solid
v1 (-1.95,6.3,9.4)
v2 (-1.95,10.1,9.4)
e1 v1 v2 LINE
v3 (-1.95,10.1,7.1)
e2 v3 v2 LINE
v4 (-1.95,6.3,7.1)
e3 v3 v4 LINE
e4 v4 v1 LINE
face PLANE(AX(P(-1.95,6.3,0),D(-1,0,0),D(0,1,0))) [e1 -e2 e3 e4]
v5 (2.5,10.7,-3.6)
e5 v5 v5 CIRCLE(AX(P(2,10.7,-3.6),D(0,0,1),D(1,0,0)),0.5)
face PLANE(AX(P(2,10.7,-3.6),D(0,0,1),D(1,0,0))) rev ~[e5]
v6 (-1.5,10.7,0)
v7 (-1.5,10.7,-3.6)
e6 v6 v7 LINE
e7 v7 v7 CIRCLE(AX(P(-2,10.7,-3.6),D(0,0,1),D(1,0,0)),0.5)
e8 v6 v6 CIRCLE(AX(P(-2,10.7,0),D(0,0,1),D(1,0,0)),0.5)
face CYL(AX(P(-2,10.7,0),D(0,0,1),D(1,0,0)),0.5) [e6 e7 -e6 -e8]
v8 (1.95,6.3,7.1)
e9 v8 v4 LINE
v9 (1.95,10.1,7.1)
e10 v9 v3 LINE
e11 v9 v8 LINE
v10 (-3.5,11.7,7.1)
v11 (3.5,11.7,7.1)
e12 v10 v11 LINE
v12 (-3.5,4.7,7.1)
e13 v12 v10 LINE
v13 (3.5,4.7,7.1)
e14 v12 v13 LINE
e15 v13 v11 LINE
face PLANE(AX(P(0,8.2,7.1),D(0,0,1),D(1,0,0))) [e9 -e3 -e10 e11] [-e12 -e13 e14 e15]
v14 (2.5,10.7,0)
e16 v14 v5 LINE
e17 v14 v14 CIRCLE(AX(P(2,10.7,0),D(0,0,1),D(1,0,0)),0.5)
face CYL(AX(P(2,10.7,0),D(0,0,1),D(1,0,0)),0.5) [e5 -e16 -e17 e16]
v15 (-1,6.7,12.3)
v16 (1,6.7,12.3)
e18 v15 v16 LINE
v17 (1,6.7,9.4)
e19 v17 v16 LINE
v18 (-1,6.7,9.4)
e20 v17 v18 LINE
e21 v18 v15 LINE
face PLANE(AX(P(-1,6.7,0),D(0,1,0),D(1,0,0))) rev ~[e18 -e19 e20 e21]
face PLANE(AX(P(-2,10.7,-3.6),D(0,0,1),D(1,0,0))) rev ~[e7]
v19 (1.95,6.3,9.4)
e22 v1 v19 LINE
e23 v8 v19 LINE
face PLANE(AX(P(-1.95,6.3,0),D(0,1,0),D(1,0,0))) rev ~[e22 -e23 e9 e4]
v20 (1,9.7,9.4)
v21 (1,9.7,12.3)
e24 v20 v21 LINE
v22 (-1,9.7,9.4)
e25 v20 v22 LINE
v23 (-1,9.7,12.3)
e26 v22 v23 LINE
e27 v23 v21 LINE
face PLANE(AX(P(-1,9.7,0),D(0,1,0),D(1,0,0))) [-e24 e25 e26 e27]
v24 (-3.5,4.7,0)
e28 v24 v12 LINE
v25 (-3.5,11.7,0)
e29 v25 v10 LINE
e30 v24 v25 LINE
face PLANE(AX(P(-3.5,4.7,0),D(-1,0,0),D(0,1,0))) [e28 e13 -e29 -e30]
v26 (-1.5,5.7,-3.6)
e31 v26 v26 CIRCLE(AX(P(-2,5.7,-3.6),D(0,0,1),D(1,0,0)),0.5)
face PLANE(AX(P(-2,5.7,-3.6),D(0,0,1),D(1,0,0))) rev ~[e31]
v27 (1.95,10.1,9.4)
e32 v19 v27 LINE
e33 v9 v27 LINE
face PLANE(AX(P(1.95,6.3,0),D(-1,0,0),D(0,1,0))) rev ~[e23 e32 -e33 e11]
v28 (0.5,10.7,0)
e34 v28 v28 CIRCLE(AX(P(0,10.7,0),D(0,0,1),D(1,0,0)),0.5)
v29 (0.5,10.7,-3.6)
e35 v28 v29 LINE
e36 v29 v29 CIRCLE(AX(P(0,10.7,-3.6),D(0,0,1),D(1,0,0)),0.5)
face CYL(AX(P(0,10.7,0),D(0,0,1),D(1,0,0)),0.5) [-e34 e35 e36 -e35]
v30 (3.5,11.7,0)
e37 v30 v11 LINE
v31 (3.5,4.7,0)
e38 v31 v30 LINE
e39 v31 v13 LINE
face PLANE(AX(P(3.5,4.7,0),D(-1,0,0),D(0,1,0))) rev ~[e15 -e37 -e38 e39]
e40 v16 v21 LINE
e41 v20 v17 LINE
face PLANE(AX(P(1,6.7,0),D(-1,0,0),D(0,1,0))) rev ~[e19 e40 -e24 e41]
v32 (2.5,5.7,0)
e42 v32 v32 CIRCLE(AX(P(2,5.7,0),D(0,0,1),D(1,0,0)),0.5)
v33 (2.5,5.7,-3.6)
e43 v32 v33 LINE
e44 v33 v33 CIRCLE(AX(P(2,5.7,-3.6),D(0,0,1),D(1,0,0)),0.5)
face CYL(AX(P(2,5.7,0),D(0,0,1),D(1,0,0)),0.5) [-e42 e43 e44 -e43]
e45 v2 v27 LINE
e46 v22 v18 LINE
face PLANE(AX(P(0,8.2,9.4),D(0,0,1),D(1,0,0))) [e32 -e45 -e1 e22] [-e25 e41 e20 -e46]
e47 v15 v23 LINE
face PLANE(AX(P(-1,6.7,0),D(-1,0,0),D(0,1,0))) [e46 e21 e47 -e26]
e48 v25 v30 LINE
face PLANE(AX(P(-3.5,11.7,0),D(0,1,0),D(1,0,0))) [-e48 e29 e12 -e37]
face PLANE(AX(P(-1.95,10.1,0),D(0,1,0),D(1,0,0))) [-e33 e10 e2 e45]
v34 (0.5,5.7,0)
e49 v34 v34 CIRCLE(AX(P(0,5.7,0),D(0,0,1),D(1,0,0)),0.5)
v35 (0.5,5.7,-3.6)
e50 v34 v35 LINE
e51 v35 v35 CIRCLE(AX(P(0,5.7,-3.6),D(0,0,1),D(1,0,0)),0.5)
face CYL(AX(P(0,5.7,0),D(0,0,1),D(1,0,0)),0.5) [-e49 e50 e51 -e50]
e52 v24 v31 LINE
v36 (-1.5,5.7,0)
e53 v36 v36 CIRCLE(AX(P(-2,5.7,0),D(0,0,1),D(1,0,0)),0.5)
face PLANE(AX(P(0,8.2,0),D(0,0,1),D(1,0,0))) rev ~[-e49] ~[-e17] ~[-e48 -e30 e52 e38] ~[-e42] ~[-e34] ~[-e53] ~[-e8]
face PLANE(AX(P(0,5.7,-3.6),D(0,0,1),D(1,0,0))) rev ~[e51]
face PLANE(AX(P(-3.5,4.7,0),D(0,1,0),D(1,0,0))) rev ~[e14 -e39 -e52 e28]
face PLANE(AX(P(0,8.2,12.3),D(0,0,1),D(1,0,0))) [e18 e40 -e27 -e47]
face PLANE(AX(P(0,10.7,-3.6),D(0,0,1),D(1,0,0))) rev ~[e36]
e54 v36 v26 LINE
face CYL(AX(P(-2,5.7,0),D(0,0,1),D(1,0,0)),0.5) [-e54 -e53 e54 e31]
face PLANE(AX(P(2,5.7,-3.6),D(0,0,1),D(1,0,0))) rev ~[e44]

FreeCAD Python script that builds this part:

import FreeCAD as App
import Part
import Sketcher
Q = App.Units.Quantity


def add_polygon(sketch, points):
    """Adds a closed chain of lines whose ends are joined by coincident constraints."""
    first, n = sketch.GeometryCount, len(points)
    for a, b in zip(points, points[1:] + points[:1]):
        sketch.addGeometry(Part.LineSegment(App.Vector(*a, 0), App.Vector(*b, 0)), False)
    for i in range(n):
        sketch.addConstraint(Sketcher.Constraint("Coincident", first + i, 2, first + (i + 1) % n, 1))

doc = App.newDocument("Part")
body = doc.addObject("PartDesign::Body", "Body")

# Sketch on XY plane
sketch1 = doc.addObject("Sketcher::SketchObject", "Sketch")
body.addObject(sketch1)
sketch1.AttachmentSupport = (doc.XY_Plane, [""])
sketch1.MapMode = "FlatFace"
add_polygon(sketch1, [(-4, 4), (-4, -4), (4, -4), (4, 4)])  # lines 0-3
sketch1.addConstraint([
    Sketcher.Constraint("Vertical", 0),
    Sketcher.Constraint("Horizontal", 1),
    Sketcher.Constraint("Vertical", 2),
    Sketcher.Constraint("Horizontal", 3),
    Sketcher.Constraint("Symmetric", 0, 2, 2, 2, -1, 1),
    Sketcher.Constraint("Equal", 3, 0),
    Sketcher.Constraint("DistanceX", 1, 1, 1, 2, Q("7 mm")),
])
pad1 = doc.addObject("PartDesign::Pad", "Pad")
body.addObject(pad1)
pad1.Profile = sketch1
pad1.Length = 7.1

# Sketch on XY plane
sketch2 = doc.addObject("Sketcher::SketchObject", "Sketch001")
body.addObject(sketch2)
sketch2.AttachmentSupport = (doc.XY_Plane, [""])
sketch2.MapMode = "FlatFace"
sketch2.addGeometry([
    Part.Circle(App.Vector(0, 2.5, 0), App.Vector(0, 0, 1), 0.5),  # 0
    Part.Circle(App.Vector(0, -2.5, 0), App.Vector(0, 0, 1), 0.5),  # 1
    Part.Circle(App.Vector(2, 2.5, 0), App.Vector(0, 0, 1), 0.5),  # 2
    Part.Circle(App.Vector(-2, 2.5, 0), App.Vector(0, 0, 1), 0.5),  # 3
    Part.Circle(App.Vector(-2, -2.5, 0), App.Vector(0, 0, 1), 0.5),  # 4
    Part.Circle(App.Vector(2, -2.5, 0), App.Vector(0, 0, 1), 0.5),  # 5
], False)
sketch2.addConstraint([
    Sketcher.Constraint("Equal", 0, 1),
    Sketcher.Constraint("Equal", 1, 2),
    Sketcher.Constraint("Equal", 2, 3),
    Sketcher.Constraint("Equal", 3, 4),
    Sketcher.Constraint("Equal", 4, 5),
    Sketcher.Constraint("Symmetric", 0, 3, 1, 3, -1, 1),
    Sketcher.Constraint("Symmetric", 2, 3, 4, 3, -1, 1),
    Sketcher.Constraint("Symmetric", 3, 3, 5, 3, -1, 1),
    Sketcher.Constraint("Symmetric", 2, 3, 3, 3, -2),
    Sketcher.Constraint("PointOnObject", 0, 3, -2),
    Sketcher.Constraint("Horizontal", 0, 3, 2, 3),
    Sketcher.Constraint("Diameter", 0, Q("1 mm")),
    Sketcher.Constraint("DistanceX", -1, 1, 2, 3, Q("2 mm")),
    Sketcher.Constraint("DistanceY", 1, 3, 0, 3, Q("5 mm")),
])
pad2 = doc.addObject("PartDesign::Pad", "Pad001")
body.addObject(pad2)
pad2.Profile = sketch2
pad2.Length = 3.6
pad2.Reversed = True

# Sketch on XY plane
sketch3 = doc.addObject("Sketcher::SketchObject", "Sketch002")
body.addObject(sketch3)
sketch3.AttachmentSupport = (doc.XY_Plane, [""])
sketch3.MapMode = "FlatFace"
add_polygon(sketch3, [(-1.9, 1.9), (-1.9, -1.9), (1.9, -1.9), (1.9, 1.9)])  # lines 0-3
sketch3.addConstraint([
    Sketcher.Constraint("Vertical", 0),
    Sketcher.Constraint("Horizontal", 1),
    Sketcher.Constraint("Vertical", 2),
    Sketcher.Constraint("Horizontal", 3),
    Sketcher.Constraint("Symmetric", 0, 2, 2, 2, -1, 1),
    Sketcher.Constraint("DistanceX", 1, 1, 1, 2, Q("3.9 mm")),
    Sketcher.Constraint("DistanceY", 0, 2, 0, 1, Q("3.8 mm")),
])
pad3 = doc.addObject("PartDesign::Pad", "Pad002")
body.addObject(pad3)
pad3.Profile = sketch3
pad3.Length = 9.4

# Sketch on XY plane
sketch4 = doc.addObject("Sketcher::SketchObject", "Sketch003")
body.addObject(sketch4)
sketch4.AttachmentSupport = (doc.XY_Plane, [""])
sketch4.MapMode = "FlatFace"
add_polygon(sketch4, [(-1, 1.5), (-1, -1.5), (1, -1.5), (1, 1.5)])  # lines 0-3
sketch4.addConstraint([
    Sketcher.Constraint("Vertical", 0),
    Sketcher.Constraint("Horizontal", 1),
    Sketcher.Constraint("Vertical", 2),
    Sketcher.Constraint("Horizontal", 3),
    Sketcher.Constraint("Symmetric", 0, 2, 2, 2, -1, 1),
    Sketcher.Constraint("DistanceX", 1, 1, 1, 2, Q("2 mm")),
    Sketcher.Constraint("DistanceY", 0, 2, 0, 1, Q("3 mm")),
])
pad4 = doc.addObject("PartDesign::Pad", "Pad003")
body.addObject(pad4)
pad4.Profile = sketch4
pad4.Length = 12.3
body2 = doc.addObject("PartDesign::Body", "Body001")
doc.recompute()

body.Placement = App.Placement(App.Vector(0, 8.2, 0), App.Rotation(App.Vector(0, 0, 1), 0))
boolean = doc.addObject("PartDesign::Boolean", "Boolean")
body2.addObject(boolean)
boolean.Type = "Fuse"
boolean.addObjects([body])

doc.recompute()
